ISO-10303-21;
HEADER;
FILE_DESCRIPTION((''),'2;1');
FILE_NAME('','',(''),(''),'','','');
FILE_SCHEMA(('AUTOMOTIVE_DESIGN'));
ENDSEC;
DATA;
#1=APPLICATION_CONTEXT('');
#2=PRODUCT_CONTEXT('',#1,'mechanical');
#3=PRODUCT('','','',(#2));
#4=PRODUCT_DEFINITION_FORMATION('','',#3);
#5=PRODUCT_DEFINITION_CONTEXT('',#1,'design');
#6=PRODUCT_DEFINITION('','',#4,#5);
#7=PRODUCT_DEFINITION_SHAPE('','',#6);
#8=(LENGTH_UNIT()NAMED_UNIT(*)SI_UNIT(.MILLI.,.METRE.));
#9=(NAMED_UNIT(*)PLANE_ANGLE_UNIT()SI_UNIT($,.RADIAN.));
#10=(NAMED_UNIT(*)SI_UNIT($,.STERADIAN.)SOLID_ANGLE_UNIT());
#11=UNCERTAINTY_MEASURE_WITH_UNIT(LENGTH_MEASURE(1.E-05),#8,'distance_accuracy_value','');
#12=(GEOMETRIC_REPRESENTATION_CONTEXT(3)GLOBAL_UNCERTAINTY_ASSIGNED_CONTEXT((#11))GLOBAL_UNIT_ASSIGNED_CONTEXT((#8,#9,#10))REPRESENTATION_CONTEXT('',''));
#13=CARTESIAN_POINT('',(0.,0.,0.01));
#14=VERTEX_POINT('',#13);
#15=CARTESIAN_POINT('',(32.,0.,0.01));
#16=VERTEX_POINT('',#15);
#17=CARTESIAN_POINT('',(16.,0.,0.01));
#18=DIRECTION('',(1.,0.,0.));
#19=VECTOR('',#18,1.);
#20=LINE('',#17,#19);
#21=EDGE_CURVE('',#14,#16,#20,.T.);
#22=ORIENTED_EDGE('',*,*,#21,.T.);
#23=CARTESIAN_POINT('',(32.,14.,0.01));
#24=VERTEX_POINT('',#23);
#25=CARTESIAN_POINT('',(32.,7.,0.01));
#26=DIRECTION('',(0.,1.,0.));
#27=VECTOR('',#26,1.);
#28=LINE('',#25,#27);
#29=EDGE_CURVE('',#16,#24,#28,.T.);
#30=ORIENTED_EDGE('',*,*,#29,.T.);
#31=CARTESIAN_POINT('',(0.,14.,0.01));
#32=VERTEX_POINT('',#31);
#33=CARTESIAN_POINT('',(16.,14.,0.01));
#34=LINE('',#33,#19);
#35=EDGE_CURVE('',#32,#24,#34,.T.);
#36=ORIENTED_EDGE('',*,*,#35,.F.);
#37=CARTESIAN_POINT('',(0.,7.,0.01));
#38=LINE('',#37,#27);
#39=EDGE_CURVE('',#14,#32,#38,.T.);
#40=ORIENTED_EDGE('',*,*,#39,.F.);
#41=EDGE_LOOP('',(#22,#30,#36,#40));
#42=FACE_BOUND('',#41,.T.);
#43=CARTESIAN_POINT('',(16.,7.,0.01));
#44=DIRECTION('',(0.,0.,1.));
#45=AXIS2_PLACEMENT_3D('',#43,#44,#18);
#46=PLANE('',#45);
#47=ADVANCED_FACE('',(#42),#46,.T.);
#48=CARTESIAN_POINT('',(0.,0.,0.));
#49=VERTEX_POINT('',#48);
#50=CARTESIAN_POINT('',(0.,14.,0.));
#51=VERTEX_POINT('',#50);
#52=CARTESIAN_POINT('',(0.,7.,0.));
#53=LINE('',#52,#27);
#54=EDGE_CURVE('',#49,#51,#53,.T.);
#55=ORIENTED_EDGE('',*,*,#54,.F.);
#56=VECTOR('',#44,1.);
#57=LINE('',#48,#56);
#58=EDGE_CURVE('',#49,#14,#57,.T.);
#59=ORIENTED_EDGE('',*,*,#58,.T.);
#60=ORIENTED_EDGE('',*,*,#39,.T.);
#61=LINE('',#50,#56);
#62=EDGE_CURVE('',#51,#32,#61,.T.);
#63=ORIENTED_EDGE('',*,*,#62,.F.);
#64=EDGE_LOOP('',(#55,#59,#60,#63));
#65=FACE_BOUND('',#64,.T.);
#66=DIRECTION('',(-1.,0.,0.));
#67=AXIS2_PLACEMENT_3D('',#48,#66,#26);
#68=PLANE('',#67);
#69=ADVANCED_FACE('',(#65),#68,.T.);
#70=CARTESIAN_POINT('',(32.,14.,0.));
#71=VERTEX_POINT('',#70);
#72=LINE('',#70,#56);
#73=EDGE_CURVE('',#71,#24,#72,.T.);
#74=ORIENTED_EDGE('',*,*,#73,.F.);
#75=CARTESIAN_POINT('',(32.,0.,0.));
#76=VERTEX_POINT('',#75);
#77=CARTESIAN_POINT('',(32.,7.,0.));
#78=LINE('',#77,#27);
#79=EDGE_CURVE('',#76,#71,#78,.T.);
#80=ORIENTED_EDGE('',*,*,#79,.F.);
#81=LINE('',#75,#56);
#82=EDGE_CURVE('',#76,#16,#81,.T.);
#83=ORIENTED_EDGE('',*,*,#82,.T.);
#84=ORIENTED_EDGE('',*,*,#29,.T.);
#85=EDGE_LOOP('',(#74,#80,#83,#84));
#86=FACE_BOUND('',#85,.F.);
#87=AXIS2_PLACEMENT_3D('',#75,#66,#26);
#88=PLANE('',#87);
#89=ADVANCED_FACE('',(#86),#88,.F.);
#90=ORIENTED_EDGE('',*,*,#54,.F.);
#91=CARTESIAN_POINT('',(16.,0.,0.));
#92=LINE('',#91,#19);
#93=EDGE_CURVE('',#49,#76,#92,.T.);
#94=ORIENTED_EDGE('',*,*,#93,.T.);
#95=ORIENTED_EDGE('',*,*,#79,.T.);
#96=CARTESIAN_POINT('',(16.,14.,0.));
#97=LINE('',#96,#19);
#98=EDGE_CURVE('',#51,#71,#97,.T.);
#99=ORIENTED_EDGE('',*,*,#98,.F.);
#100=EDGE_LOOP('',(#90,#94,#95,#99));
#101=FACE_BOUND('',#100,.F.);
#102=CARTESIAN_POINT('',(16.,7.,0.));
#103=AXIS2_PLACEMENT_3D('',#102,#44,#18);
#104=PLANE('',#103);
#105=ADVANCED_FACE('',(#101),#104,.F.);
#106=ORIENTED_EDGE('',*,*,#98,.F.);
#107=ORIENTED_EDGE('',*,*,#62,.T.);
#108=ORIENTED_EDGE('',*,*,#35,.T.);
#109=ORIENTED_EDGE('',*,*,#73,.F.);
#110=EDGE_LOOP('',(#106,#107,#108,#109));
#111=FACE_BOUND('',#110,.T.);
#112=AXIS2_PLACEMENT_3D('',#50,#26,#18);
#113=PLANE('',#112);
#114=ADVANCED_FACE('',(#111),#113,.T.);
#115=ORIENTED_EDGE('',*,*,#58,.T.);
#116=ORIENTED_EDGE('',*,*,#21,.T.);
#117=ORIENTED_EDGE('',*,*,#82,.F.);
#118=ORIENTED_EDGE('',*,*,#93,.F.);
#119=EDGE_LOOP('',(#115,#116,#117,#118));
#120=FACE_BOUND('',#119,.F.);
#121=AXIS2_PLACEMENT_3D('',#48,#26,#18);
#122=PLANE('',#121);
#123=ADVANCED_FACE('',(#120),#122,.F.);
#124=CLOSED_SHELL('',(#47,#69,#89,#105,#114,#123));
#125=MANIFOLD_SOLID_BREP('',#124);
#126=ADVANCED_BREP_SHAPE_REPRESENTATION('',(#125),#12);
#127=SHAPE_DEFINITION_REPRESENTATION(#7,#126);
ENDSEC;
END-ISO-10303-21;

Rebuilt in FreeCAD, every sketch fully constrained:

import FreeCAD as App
import Part
import Sketcher

doc = App.newDocument("Part")
body = doc.addObject("PartDesign::Body", "Body")

sketch1 = doc.addObject("Sketcher::SketchObject", "Sketch")
body.addObject(sketch1)
sketch1.AttachmentSupport = (doc.XY_Plane, [""])
sketch1.MapMode = "FlatFace"
sketch1.addGeometry([
    Part.LineSegment(App.Vector(0, 14, 0), App.Vector(0, 0, 0)),
    Part.LineSegment(App.Vector(0, 0, 0), App.Vector(32, 0, 0)),
    Part.LineSegment(App.Vector(32, 0, 0), App.Vector(32, 14, 0)),
    Part.LineSegment(App.Vector(32, 14, 0), App.Vector(0, 14, 0)),
], False)
sketch1.addConstraint([
    Sketcher.Constraint("Coincident", 0, 2, 1, 1),
    Sketcher.Constraint("Coincident", 1, 2, 2, 1),
    Sketcher.Constraint("Coincident", 2, 2, 3, 1),
    Sketcher.Constraint("Coincident", 3, 2, 0, 1),
    Sketcher.Constraint("Vertical", 0),
    Sketcher.Constraint("Horizontal", 1),
    Sketcher.Constraint("Vertical", 2),
    Sketcher.Constraint("Horizontal", 3),
    Sketcher.Constraint("Coincident", 0, 2, -1, 1),
    Sketcher.Constraint("DistanceX", 1, 1, 1, 2, 32.0),
    Sketcher.Constraint("DistanceY", 0, 2, 0, 1, 14.0),
])
pad1 = doc.addObject("PartDesign::Pad", "Pad")
body.addObject(pad1)
pad1.Profile = sketch1
pad1.Length = 0.01

doc.recompute()
